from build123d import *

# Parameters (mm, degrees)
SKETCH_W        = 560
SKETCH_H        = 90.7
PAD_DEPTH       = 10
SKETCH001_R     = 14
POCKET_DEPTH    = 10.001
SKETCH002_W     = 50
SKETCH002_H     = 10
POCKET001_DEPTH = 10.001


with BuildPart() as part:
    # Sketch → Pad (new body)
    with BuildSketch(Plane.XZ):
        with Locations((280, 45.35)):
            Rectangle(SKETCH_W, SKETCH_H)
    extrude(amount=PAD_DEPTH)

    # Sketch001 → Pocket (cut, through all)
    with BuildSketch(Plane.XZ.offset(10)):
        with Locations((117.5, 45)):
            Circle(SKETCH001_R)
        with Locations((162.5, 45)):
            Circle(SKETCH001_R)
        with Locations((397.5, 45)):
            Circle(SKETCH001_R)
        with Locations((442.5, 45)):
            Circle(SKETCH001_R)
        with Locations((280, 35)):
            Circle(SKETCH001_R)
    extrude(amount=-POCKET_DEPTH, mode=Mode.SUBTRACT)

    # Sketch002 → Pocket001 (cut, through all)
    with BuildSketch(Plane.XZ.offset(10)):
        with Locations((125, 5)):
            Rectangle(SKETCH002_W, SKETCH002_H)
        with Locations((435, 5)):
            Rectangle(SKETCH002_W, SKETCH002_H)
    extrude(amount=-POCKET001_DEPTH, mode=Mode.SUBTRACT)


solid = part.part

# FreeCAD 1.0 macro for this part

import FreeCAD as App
import Part
import Sketcher

V = App.Vector

doc = App.newDocument("Part")
params = doc.addObject("Spreadsheet::Sheet", "Params")
for row, (alias, value) in enumerate([
    ("sketch1_width", "560 mm"),
    ("sketch1_height", "90.7 mm"),
    ("pad1_length", "10 mm"),
    ("sketch2_diameter", "28 mm"),
    ("sketch3_width", "50 mm"),
    ("sketch3_height", "10 mm"),
], start=1):
    params.set(f"A{row}", alias)
    params.set(f"B{row}", "=" + value)
    params.setAlias(f"B{row}", alias)

body = doc.addObject("PartDesign::Body", "Body")

# Sketch on XZ plane
sketch1 = body.newObject("Sketcher::SketchObject", "Sketch")
sketch1.AttachmentSupport = (doc.getObject("XZ_Plane"), [""])
sketch1.MapMode = "FlatFace"
sketch1.addGeometry([
    Part.LineSegment(V(0, 90.7, 0), V(0, 0, 0)),
    Part.LineSegment(V(0, 0, 0), V(560, 0, 0)),
    Part.LineSegment(V(560, 0, 0), V(560, 90.7, 0)),
    Part.LineSegment(V(560, 90.7, 0), V(0, 90.7, 0)),
], False)
sketch1.addConstraint([
    Sketcher.Constraint("Coincident", 0, 2, 1, 1),
    Sketcher.Constraint("Coincident", 1, 2, 2, 1),
    Sketcher.Constraint("Coincident", 2, 2, 3, 1),
    Sketcher.Constraint("Coincident", 3, 2, 0, 1),
    Sketcher.Constraint("Vertical", 0),
    Sketcher.Constraint("Horizontal", 1),
    Sketcher.Constraint("Vertical", 2),
    Sketcher.Constraint("Horizontal", 3),
    Sketcher.Constraint("Coincident", 0, 2, -1, 1),
    Sketcher.Constraint("DistanceX", 1, 1, 1, 2, 560.0),
    Sketcher.Constraint("DistanceY", 0, 2, 0, 1, 90.7),
])
sketch1.setExpression("Constraints[9]", "Params.sketch1_width")
sketch1.setExpression("Constraints[10]", "Params.sketch1_height")
pad1 = body.newObject("PartDesign::Pad", "Pad")
pad1.Profile = sketch1
pad1.setExpression("Length", "Params.pad1_length")

# Sketch on XZ plane
sketch2 = body.newObject("Sketcher::SketchObject", "Sketch001")
sketch2.AttachmentSupport = (doc.getObject("XZ_Plane"), [""])
sketch2.MapMode = "FlatFace"
sketch2.AttachmentOffset = App.Placement(V(0, 0, 10), App.Rotation())
sketch2.addGeometry([
    Part.Circle(V(117.5, 45, 0), V(0, 0, 1), 14),  # 0
    Part.Circle(V(162.5, 45, 0), V(0, 0, 1), 14),  # 1
    Part.Circle(V(397.5, 45, 0), V(0, 0, 1), 14),  # 2
    Part.Circle(V(442.5, 45, 0), V(0, 0, 1), 14),  # 3
    Part.Circle(V(280, 35, 0), V(0, 0, 1), 14),  # 4
], False)
sketch2.addConstraint([
    Sketcher.Constraint("Equal", 0, 1),
    Sketcher.Constraint("Equal", 1, 2),
    Sketcher.Constraint("Equal", 2, 3),
    Sketcher.Constraint("Equal", 3, 4),
    Sketcher.Constraint("Horizontal", 0, 3, 1, 3),
    Sketcher.Constraint("Horizontal", 1, 3, 2, 3),
    Sketcher.Constraint("Horizontal", 2, 3, 3, 3),
    Sketcher.Constraint("Diameter", 0, 28.0),
    Sketcher.Constraint("DistanceY", -1, 1, 0, 3, 45.0),
    Sketcher.Constraint("DistanceX", -1, 1, 4, 3, 280.0),
    Sketcher.Constraint("DistanceY", -1, 1, 4, 3, 35.0),
    Sketcher.Constraint("DistanceX", 0, 3, 1, 3, 45.0),
    Sketcher.Constraint("DistanceX", 1, 3, 2, 3, 235.0),
    Sketcher.Constraint("DistanceX", 2, 3, 3, 3, 45.0),
    Sketcher.Constraint("DistanceX", -1, 1, 0, 3, 117.5),
])
sketch2.setExpression("Constraints[7]", "Params.sketch2_diameter")
pocket1 = body.newObject("PartDesign::Pocket", "Pocket")
pocket1.Profile = sketch2
pocket1.Type = "ThroughAll"

# Sketch on XZ plane
sketch3 = body.newObject("Sketcher::SketchObject", "Sketch002")
sketch3.AttachmentSupport = (doc.getObject("XZ_Plane"), [""])
sketch3.MapMode = "FlatFace"
sketch3.AttachmentOffset = App.Placement(V(0, 0, 10), App.Rotation())
sketch3.addGeometry([
    Part.LineSegment(V(100, 10, 0), V(100, 0, 0)),  # 0
    Part.LineSegment(V(100, 0, 0), V(150, 0, 0)),  # 1
    Part.LineSegment(V(150, 0, 0), V(150, 10, 0)),  # 2
    Part.LineSegment(V(150, 10, 0), V(100, 10, 0)),  # 3
    Part.LineSegment(V(410, 10, 0), V(410, 0, 0)),  # 4
    Part.LineSegment(V(410, 0, 0), V(460, 0, 0)),  # 5
    Part.LineSegment(V(460, 0, 0), V(460, 10, 0)),  # 6
    Part.LineSegment(V(460, 10, 0), V(410, 10, 0)),  # 7
], False)
sketch3.addConstraint([
    Sketcher.Constraint("Coincident", 0, 2, 1, 1),
    Sketcher.Constraint("Coincident", 1, 2, 2, 1),
    Sketcher.Constraint("Coincident", 2, 2, 3, 1),
    Sketcher.Constraint("Coincident", 3, 2, 0, 1),
    Sketcher.Constraint("Coincident", 4, 2, 5, 1),
    Sketcher.Constraint("Coincident", 5, 2, 6, 1),
    Sketcher.Constraint("Coincident", 6, 2, 7, 1),
    Sketcher.Constraint("Coincident", 7, 2, 4, 1),
    Sketcher.Constraint("Vertical", 0),
    Sketcher.Constraint("Horizontal", 1),
    Sketcher.Constraint("Vertical", 2),
    Sketcher.Constraint("Horizontal", 3),
    Sketcher.Constraint("Vertical", 4),
    Sketcher.Constraint("Horizontal", 5),
    Sketcher.Constraint("Vertical", 6),
    Sketcher.Constraint("Horizontal", 7),
    Sketcher.Constraint("PointOnObject", 0, 2, -1),
    Sketcher.Constraint("PointOnObject", 4, 2, -1),
    Sketcher.Constraint("Horizontal", 3, 2, 6, 2),
    Sketcher.Constraint("Equal", 3, 5),
    Sketcher.Constraint("DistanceX", 1, 1, 1, 2, 50.0),
    Sketcher.Constraint("DistanceY", 0, 2, 0, 1, 10.0),
    Sketcher.Constraint("DistanceX", -1, 1, 0, 2, 100.0),
    Sketcher.Constraint("DistanceX", -1, 1, 4, 2, 410.0),
])
sketch3.setExpression("Constraints[20]", "Params.sketch3_width")
sketch3.setExpression("Constraints[21]", "Params.sketch3_height")
pocket2 = body.newObject("PartDesign::Pocket", "Pocket001")
pocket2.Profile = sketch3
pocket2.Type = "ThroughAll"

doc.recompute()
